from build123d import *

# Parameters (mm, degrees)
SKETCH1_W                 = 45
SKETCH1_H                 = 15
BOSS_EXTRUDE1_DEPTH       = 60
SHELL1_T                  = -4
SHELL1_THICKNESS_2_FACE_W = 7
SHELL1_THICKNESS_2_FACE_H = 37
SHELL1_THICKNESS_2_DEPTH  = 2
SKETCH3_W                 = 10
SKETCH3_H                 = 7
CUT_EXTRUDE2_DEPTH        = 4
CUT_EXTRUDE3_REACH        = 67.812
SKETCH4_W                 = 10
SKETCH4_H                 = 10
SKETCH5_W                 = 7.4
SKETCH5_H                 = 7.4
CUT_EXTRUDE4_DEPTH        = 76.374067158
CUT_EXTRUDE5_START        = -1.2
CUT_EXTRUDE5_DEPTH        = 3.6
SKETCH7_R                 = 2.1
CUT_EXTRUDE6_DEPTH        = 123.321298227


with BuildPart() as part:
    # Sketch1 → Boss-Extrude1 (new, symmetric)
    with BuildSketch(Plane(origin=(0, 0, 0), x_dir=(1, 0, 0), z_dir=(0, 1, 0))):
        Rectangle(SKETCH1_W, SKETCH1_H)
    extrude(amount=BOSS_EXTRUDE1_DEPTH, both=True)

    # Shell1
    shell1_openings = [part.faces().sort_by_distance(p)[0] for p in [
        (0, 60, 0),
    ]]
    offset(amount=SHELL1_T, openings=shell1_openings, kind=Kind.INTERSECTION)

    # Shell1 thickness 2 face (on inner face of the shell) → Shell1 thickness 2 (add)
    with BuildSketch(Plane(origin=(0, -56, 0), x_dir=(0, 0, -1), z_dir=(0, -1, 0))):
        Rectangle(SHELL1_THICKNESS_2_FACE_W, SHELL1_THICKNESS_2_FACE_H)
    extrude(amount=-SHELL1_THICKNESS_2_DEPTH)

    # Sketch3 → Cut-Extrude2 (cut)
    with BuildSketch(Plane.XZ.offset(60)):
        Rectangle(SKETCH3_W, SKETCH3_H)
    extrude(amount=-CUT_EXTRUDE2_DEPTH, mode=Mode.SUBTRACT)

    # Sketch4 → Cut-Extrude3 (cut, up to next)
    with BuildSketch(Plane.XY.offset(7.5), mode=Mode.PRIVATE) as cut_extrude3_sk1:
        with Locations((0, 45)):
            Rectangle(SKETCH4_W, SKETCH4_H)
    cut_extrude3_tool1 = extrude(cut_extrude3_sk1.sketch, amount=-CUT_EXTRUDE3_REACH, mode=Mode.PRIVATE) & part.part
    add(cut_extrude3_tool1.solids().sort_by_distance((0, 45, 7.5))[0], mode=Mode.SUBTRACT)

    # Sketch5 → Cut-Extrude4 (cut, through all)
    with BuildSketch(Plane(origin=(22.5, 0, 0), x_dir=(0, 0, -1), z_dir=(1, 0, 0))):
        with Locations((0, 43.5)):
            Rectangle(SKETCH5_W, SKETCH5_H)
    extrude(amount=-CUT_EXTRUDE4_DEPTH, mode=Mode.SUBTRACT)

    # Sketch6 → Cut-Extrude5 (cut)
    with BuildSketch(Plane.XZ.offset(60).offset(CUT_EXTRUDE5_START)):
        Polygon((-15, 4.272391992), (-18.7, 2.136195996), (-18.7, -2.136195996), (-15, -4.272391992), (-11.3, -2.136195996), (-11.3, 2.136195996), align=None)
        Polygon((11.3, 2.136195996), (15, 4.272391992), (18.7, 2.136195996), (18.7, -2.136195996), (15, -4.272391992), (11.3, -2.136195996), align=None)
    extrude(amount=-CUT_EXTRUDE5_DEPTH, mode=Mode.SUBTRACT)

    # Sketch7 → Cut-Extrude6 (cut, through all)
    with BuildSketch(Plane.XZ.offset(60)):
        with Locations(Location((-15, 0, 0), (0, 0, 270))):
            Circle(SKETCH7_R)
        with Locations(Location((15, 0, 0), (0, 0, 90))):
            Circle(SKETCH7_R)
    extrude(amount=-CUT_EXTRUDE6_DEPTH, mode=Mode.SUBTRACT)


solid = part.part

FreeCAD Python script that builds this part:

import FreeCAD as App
import Part
import Sketcher

V = App.Vector
Q = App.Units.Quantity


def faces_at(feature, points):
    """Names of the faces that lie closest to the given points."""
    faces = feature.Shape.Faces
    near = lambda p: min(range(len(faces)), key=lambda i: faces[i].distToShape(Part.Vertex(*p))[0])
    return sorted({f"Face{near(p) + 1}" for p in points})

doc = App.newDocument("Part")
body = doc.addObject("PartDesign::Body", "Body")

# Sketch on XZ plane
sketch1 = body.newObject("Sketcher::SketchObject", "Sketch")
sketch1.AttachmentSupport = (doc.getObject("XZ_Plane"), [""])
sketch1.MapMode = "FlatFace"
sketch1.addGeometry([
    Part.LineSegment(V(-22, -8, 0), V(-22, 8, 0)),
    Part.LineSegment(V(-22, 8, 0), V(22, 8, 0)),
    Part.LineSegment(V(22, 8, 0), V(22, -8, 0)),
    Part.LineSegment(V(22, -8, 0), V(-22, -8, 0)),
], False)
sketch1.addConstraint([
    Sketcher.Constraint("Coincident", 0, 2, 1, 1),
    Sketcher.Constraint("Coincident", 1, 2, 2, 1),
    Sketcher.Constraint("Coincident", 2, 2, 3, 1),
    Sketcher.Constraint("Coincident", 3, 2, 0, 1),
    Sketcher.Constraint("Vertical", 0),
    Sketcher.Constraint("Horizontal", 1),
    Sketcher.Constraint("Vertical", 2),
    Sketcher.Constraint("Horizontal", 3),
    Sketcher.Constraint("Symmetric", 0, 2, 2, 2, -1, 1),
    Sketcher.Constraint("DistanceX", 1, 1, 1, 2, 45.0),
    Sketcher.Constraint("DistanceY", 0, 1, 0, 2, 15.0),
])
pad1 = body.newObject("PartDesign::Pad", "Pad")
pad1.Profile = sketch1
pad1.Length = 120
pad1.Midplane = True
doc.recompute()

thickness = body.newObject("PartDesign::Thickness", "Thickness")
thickness.Base = (pad1, faces_at(pad1, [(0, 60, 0)]))
thickness.Value = 4
thickness.Reversed = True
thickness.Join = "Intersection"

# Sketch on XZ plane
sketch2 = body.newObject("Sketcher::SketchObject", "Sketch001")
sketch2.AttachmentSupport = (doc.getObject("XZ_Plane"), [""])
sketch2.MapMode = "FlatFace"
sketch2.AttachmentOffset = App.Placement(V(0, 0, 56), App.Rotation())
sketch2.addGeometry([
    Part.LineSegment(V(18, 4, 0), V(-18, 4, 0)),
    Part.LineSegment(V(-18, 4, 0), V(-18, -4, 0)),
    Part.LineSegment(V(-18, -4, 0), V(18, -4, 0)),
    Part.LineSegment(V(18, -4, 0), V(18, 4, 0)),
], False)
sketch2.addConstraint([
    Sketcher.Constraint("Coincident", 0, 2, 1, 1),
    Sketcher.Constraint("Coincident", 1, 2, 2, 1),
    Sketcher.Constraint("Coincident", 2, 2, 3, 1),
    Sketcher.Constraint("Coincident", 3, 2, 0, 1),
    Sketcher.Constraint("Horizontal", 0),
    Sketcher.Constraint("Vertical", 1),
    Sketcher.Constraint("Horizontal", 2),
    Sketcher.Constraint("Vertical", 3),
    Sketcher.Constraint("Symmetric", 0, 2, 2, 2, -1, 1),
    Sketcher.Constraint("DistanceX", 0, 2, 0, 1, 37.0),
    Sketcher.Constraint("DistanceY", 1, 2, 1, 1, 7.0),
])
pad2 = body.newObject("PartDesign::Pad", "Pad001")
pad2.Profile = sketch2
pad2.Length = 2
pad2.Reversed = True

# Sketch on XZ plane
sketch3 = body.newObject("Sketcher::SketchObject", "Sketch002")
sketch3.AttachmentSupport = (doc.getObject("XZ_Plane"), [""])
sketch3.MapMode = "FlatFace"
sketch3.AttachmentOffset = App.Placement(V(0, 0, 60), App.Rotation())
sketch3.addGeometry([
    Part.LineSegment(V(-5, 4, 0), V(-5, -4, 0)),
    Part.LineSegment(V(-5, -4, 0), V(5, -4, 0)),
    Part.LineSegment(V(5, -4, 0), V(5, 4, 0)),
    Part.LineSegment(V(5, 4, 0), V(-5, 4, 0)),
], False)
sketch3.addConstraint([
    Sketcher.Constraint("Coincident", 0, 2, 1, 1),
    Sketcher.Constraint("Coincident", 1, 2, 2, 1),
    Sketcher.Constraint("Coincident", 2, 2, 3, 1),
    Sketcher.Constraint("Coincident", 3, 2, 0, 1),
    Sketcher.Constraint("Vertical", 0),
    Sketcher.Constraint("Horizontal", 1),
    Sketcher.Constraint("Vertical", 2),
    Sketcher.Constraint("Horizontal", 3),
    Sketcher.Constraint("Symmetric", 0, 2, 2, 2, -1, 1),
    Sketcher.Constraint("DistanceX", 1, 1, 1, 2, 10.0),
    Sketcher.Constraint("DistanceY", 0, 2, 0, 1, 7.0),
])
pocket1 = body.newObject("PartDesign::Pocket", "Pocket")
pocket1.Profile = sketch3
pocket1.Length = 4

# Sketch on XY plane
sketch4 = body.newObject("Sketcher::SketchObject", "Sketch003")
sketch4.AttachmentSupport = (doc.getObject("XY_Plane"), [""])
sketch4.MapMode = "FlatFace"
sketch4.AttachmentOffset = App.Placement(V(0, 0, 7.5), App.Rotation())
sketch4.addGeometry([
    Part.LineSegment(V(-5, 50, 0), V(-5, 40, 0)),
    Part.LineSegment(V(-5, 40, 0), V(5, 40, 0)),
    Part.LineSegment(V(5, 40, 0), V(5, 50, 0)),
    Part.LineSegment(V(5, 50, 0), V(-5, 50, 0)),
], False)
sketch4.addConstraint([
    Sketcher.Constraint("Coincident", 0, 2, 1, 1),
    Sketcher.Constraint("Coincident", 1, 2, 2, 1),
    Sketcher.Constraint("Coincident", 2, 2, 3, 1),
    Sketcher.Constraint("Coincident", 3, 2, 0, 1),
    Sketcher.Constraint("Vertical", 0),
    Sketcher.Constraint("Horizontal", 1),
    Sketcher.Constraint("Vertical", 2),
    Sketcher.Constraint("Horizontal", 3),
    Sketcher.Constraint("Equal", 3, 0),
    Sketcher.Constraint("DistanceX", 1, 1, 1, 2, 10.0),
    Sketcher.Constraint("DistanceX", 0, 2, -1, 1, 5.0),
    Sketcher.Constraint("DistanceY", -1, 1, 0, 2, 40.0),
])
pocket2 = body.newObject("PartDesign::Pocket", "Pocket001")
pocket2.Profile = sketch4
pocket2.Type = "UpToFirst"

# Sketch on YZ plane
sketch5 = body.newObject("Sketcher::SketchObject", "Sketch004")
sketch5.AttachmentSupport = (doc.getObject("YZ_Plane"), [""])
sketch5.MapMode = "FlatFace"
sketch5.AttachmentOffset = App.Placement(V(0, 0, 22.5), App.Rotation())
sketch5.addGeometry([
    Part.LineSegment(V(47, 4, 0), V(40, 4, 0)),
    Part.LineSegment(V(40, 4, 0), V(40, -4, 0)),
    Part.LineSegment(V(40, -4, 0), V(47, -4, 0)),
    Part.LineSegment(V(47, -4, 0), V(47, 4, 0)),
], False)
sketch5.addConstraint([
    Sketcher.Constraint("Coincident", 0, 2, 1, 1),
    Sketcher.Constraint("Coincident", 1, 2, 2, 1),
    Sketcher.Constraint("Coincident", 2, 2, 3, 1),
    Sketcher.Constraint("Coincident", 3, 2, 0, 1),
    Sketcher.Constraint("Horizontal", 0),
    Sketcher.Constraint("Vertical", 1),
    Sketcher.Constraint("Horizontal", 2),
    Sketcher.Constraint("Vertical", 3),
    Sketcher.Constraint("Equal", 2, 1),
    Sketcher.Constraint("DistanceX", 0, 2, 0, 1, 7.4),
    Sketcher.Constraint("DistanceX", -1, 1, 0, 2, 39.8),
    Sketcher.Constraint("DistanceY", -1, 1, 0, 2, 3.7),
])
pocket3 = body.newObject("PartDesign::Pocket", "Pocket002")
pocket3.Profile = sketch5
pocket3.Type = "ThroughAll"

# Sketch on XZ plane
sketch6 = body.newObject("Sketcher::SketchObject", "Sketch005")
sketch6.AttachmentSupport = (doc.getObject("XZ_Plane"), [""])
sketch6.MapMode = "FlatFace"
sketch6.AttachmentOffset = App.Placement(V(0, 0, 58.8), App.Rotation())
sketch6.addGeometry([
    Part.LineSegment(V(-15, 4.3, 0), V(-18.7, 2.1, 0)),  # 0
    Part.LineSegment(V(-18.7, 2.1, 0), V(-18.7, -2.1, 0)),  # 1
    Part.LineSegment(V(-18.7, -2.1, 0), V(-15, -4.3, 0)),  # 2
    Part.LineSegment(V(-15, -4.3, 0), V(-11.3, -2.1, 0)),  # 3
    Part.LineSegment(V(-11.3, -2.1, 0), V(-11.3, 2.1, 0)),  # 4
    Part.LineSegment(V(-11.3, 2.1, 0), V(-15, 4.3, 0)),  # 5
    Part.LineSegment(V(15, 4.3, 0), V(11.3, 2.1, 0)),  # 6
    Part.LineSegment(V(11.3, 2.1, 0), V(11.3, -2.1, 0)),  # 7
    Part.LineSegment(V(11.3, -2.1, 0), V(15, -4.3, 0)),  # 8
    Part.LineSegment(V(15, -4.3, 0), V(18.7, -2.1, 0)),  # 9
    Part.LineSegment(V(18.7, -2.1, 0), V(18.7, 2.1, 0)),  # 10
    Part.LineSegment(V(18.7, 2.1, 0), V(15, 4.3, 0)),  # 11
], False)
sketch6.addConstraint([
    Sketcher.Constraint("Coincident", 0, 2, 1, 1),
    Sketcher.Constraint("Coincident", 1, 2, 2, 1),
    Sketcher.Constraint("Coincident", 2, 2, 3, 1),
    Sketcher.Constraint("Coincident", 3, 2, 4, 1),
    Sketcher.Constraint("Coincident", 4, 2, 5, 1),
    Sketcher.Constraint("Coincident", 5, 2, 0, 1),
    Sketcher.Constraint("Coincident", 6, 2, 7, 1),
    Sketcher.Constraint("Coincident", 7, 2, 8, 1),
    Sketcher.Constraint("Coincident", 8, 2, 9, 1),
    Sketcher.Constraint("Coincident", 9, 2, 10, 1),
    Sketcher.Constraint("Coincident", 10, 2, 11, 1),
    Sketcher.Constraint("Coincident", 11, 2, 6, 1),
    Sketcher.Constraint("Vertical", 1),
    Sketcher.Constraint("Vertical", 4),
    Sketcher.Constraint("Vertical", 7),
    Sketcher.Constraint("Vertical", 10),
    Sketcher.Constraint("Symmetric", 3, 2, 6, 2, -1, 1),
    Sketcher.Constraint("Symmetric", 5, 2, 8, 2, -1, 1),
    Sketcher.Constraint("Symmetric", 0, 2, 9, 2, -1, 1),
    Sketcher.Constraint("Symmetric", 2, 2, 11, 2, -1, 1),
    Sketcher.Constraint("Symmetric", 2, 2, 8, 2, -2),
    Sketcher.Constraint("Parallel", 0, 3),
    Sketcher.Constraint("Parallel", 2, 5),
    Sketcher.Constraint("Parallel", 5, 8),
    Sketcher.Constraint("Parallel", 8, 11),
    Sketcher.Constraint("Horizontal", 1, 2, 3, 2),
    Sketcher.Constraint("Horizontal", 0, 2, 4, 2),
    Sketcher.Constraint("Angle", 0, Q("-150 deg")),
    Sketcher.Constraint("DistanceX", 2, 2, -1, 1, 15.0),
    Sketcher.Constraint("DistanceX", 0, 2, -1, 1, 18.7),
    Sketcher.Constraint("DistanceY", 1, 2, 1, 1, 4.272392),
])
pocket4 = body.newObject("PartDesign::Pocket", "Pocket003")
pocket4.Profile = sketch6
pocket4.Length = 3.6

# Sketch on XZ plane
sketch7 = body.newObject("Sketcher::SketchObject", "Sketch006")
sketch7.AttachmentSupport = (doc.getObject("XZ_Plane"), [""])
sketch7.MapMode = "FlatFace"
sketch7.AttachmentOffset = App.Placement(V(0, 0, 60), App.Rotation())
sketch7.addGeometry([
    Part.Circle(V(-15, 0, 0), V(0, 0, 1), 2.1),
    Part.Circle(V(15, 0, 0), V(0, 0, 1), 2.1),
], False)
sketch7.addConstraint([
    Sketcher.Constraint("Equal", 0, 1),
    Sketcher.Constraint("Symmetric", 0, 3, 1, 3, -1, 1),
    Sketcher.Constraint("PointOnObject", 0, 3, -1),
    Sketcher.Constraint("Diameter", 0, 4.2),
    Sketcher.Constraint("DistanceX", 0, 3, -1, 1, 15.0),
])
pocket5 = body.newObject("PartDesign::Pocket", "Pocket004")
pocket5.Profile = sketch7
pocket5.Type = "ThroughAll"

doc.recompute()
